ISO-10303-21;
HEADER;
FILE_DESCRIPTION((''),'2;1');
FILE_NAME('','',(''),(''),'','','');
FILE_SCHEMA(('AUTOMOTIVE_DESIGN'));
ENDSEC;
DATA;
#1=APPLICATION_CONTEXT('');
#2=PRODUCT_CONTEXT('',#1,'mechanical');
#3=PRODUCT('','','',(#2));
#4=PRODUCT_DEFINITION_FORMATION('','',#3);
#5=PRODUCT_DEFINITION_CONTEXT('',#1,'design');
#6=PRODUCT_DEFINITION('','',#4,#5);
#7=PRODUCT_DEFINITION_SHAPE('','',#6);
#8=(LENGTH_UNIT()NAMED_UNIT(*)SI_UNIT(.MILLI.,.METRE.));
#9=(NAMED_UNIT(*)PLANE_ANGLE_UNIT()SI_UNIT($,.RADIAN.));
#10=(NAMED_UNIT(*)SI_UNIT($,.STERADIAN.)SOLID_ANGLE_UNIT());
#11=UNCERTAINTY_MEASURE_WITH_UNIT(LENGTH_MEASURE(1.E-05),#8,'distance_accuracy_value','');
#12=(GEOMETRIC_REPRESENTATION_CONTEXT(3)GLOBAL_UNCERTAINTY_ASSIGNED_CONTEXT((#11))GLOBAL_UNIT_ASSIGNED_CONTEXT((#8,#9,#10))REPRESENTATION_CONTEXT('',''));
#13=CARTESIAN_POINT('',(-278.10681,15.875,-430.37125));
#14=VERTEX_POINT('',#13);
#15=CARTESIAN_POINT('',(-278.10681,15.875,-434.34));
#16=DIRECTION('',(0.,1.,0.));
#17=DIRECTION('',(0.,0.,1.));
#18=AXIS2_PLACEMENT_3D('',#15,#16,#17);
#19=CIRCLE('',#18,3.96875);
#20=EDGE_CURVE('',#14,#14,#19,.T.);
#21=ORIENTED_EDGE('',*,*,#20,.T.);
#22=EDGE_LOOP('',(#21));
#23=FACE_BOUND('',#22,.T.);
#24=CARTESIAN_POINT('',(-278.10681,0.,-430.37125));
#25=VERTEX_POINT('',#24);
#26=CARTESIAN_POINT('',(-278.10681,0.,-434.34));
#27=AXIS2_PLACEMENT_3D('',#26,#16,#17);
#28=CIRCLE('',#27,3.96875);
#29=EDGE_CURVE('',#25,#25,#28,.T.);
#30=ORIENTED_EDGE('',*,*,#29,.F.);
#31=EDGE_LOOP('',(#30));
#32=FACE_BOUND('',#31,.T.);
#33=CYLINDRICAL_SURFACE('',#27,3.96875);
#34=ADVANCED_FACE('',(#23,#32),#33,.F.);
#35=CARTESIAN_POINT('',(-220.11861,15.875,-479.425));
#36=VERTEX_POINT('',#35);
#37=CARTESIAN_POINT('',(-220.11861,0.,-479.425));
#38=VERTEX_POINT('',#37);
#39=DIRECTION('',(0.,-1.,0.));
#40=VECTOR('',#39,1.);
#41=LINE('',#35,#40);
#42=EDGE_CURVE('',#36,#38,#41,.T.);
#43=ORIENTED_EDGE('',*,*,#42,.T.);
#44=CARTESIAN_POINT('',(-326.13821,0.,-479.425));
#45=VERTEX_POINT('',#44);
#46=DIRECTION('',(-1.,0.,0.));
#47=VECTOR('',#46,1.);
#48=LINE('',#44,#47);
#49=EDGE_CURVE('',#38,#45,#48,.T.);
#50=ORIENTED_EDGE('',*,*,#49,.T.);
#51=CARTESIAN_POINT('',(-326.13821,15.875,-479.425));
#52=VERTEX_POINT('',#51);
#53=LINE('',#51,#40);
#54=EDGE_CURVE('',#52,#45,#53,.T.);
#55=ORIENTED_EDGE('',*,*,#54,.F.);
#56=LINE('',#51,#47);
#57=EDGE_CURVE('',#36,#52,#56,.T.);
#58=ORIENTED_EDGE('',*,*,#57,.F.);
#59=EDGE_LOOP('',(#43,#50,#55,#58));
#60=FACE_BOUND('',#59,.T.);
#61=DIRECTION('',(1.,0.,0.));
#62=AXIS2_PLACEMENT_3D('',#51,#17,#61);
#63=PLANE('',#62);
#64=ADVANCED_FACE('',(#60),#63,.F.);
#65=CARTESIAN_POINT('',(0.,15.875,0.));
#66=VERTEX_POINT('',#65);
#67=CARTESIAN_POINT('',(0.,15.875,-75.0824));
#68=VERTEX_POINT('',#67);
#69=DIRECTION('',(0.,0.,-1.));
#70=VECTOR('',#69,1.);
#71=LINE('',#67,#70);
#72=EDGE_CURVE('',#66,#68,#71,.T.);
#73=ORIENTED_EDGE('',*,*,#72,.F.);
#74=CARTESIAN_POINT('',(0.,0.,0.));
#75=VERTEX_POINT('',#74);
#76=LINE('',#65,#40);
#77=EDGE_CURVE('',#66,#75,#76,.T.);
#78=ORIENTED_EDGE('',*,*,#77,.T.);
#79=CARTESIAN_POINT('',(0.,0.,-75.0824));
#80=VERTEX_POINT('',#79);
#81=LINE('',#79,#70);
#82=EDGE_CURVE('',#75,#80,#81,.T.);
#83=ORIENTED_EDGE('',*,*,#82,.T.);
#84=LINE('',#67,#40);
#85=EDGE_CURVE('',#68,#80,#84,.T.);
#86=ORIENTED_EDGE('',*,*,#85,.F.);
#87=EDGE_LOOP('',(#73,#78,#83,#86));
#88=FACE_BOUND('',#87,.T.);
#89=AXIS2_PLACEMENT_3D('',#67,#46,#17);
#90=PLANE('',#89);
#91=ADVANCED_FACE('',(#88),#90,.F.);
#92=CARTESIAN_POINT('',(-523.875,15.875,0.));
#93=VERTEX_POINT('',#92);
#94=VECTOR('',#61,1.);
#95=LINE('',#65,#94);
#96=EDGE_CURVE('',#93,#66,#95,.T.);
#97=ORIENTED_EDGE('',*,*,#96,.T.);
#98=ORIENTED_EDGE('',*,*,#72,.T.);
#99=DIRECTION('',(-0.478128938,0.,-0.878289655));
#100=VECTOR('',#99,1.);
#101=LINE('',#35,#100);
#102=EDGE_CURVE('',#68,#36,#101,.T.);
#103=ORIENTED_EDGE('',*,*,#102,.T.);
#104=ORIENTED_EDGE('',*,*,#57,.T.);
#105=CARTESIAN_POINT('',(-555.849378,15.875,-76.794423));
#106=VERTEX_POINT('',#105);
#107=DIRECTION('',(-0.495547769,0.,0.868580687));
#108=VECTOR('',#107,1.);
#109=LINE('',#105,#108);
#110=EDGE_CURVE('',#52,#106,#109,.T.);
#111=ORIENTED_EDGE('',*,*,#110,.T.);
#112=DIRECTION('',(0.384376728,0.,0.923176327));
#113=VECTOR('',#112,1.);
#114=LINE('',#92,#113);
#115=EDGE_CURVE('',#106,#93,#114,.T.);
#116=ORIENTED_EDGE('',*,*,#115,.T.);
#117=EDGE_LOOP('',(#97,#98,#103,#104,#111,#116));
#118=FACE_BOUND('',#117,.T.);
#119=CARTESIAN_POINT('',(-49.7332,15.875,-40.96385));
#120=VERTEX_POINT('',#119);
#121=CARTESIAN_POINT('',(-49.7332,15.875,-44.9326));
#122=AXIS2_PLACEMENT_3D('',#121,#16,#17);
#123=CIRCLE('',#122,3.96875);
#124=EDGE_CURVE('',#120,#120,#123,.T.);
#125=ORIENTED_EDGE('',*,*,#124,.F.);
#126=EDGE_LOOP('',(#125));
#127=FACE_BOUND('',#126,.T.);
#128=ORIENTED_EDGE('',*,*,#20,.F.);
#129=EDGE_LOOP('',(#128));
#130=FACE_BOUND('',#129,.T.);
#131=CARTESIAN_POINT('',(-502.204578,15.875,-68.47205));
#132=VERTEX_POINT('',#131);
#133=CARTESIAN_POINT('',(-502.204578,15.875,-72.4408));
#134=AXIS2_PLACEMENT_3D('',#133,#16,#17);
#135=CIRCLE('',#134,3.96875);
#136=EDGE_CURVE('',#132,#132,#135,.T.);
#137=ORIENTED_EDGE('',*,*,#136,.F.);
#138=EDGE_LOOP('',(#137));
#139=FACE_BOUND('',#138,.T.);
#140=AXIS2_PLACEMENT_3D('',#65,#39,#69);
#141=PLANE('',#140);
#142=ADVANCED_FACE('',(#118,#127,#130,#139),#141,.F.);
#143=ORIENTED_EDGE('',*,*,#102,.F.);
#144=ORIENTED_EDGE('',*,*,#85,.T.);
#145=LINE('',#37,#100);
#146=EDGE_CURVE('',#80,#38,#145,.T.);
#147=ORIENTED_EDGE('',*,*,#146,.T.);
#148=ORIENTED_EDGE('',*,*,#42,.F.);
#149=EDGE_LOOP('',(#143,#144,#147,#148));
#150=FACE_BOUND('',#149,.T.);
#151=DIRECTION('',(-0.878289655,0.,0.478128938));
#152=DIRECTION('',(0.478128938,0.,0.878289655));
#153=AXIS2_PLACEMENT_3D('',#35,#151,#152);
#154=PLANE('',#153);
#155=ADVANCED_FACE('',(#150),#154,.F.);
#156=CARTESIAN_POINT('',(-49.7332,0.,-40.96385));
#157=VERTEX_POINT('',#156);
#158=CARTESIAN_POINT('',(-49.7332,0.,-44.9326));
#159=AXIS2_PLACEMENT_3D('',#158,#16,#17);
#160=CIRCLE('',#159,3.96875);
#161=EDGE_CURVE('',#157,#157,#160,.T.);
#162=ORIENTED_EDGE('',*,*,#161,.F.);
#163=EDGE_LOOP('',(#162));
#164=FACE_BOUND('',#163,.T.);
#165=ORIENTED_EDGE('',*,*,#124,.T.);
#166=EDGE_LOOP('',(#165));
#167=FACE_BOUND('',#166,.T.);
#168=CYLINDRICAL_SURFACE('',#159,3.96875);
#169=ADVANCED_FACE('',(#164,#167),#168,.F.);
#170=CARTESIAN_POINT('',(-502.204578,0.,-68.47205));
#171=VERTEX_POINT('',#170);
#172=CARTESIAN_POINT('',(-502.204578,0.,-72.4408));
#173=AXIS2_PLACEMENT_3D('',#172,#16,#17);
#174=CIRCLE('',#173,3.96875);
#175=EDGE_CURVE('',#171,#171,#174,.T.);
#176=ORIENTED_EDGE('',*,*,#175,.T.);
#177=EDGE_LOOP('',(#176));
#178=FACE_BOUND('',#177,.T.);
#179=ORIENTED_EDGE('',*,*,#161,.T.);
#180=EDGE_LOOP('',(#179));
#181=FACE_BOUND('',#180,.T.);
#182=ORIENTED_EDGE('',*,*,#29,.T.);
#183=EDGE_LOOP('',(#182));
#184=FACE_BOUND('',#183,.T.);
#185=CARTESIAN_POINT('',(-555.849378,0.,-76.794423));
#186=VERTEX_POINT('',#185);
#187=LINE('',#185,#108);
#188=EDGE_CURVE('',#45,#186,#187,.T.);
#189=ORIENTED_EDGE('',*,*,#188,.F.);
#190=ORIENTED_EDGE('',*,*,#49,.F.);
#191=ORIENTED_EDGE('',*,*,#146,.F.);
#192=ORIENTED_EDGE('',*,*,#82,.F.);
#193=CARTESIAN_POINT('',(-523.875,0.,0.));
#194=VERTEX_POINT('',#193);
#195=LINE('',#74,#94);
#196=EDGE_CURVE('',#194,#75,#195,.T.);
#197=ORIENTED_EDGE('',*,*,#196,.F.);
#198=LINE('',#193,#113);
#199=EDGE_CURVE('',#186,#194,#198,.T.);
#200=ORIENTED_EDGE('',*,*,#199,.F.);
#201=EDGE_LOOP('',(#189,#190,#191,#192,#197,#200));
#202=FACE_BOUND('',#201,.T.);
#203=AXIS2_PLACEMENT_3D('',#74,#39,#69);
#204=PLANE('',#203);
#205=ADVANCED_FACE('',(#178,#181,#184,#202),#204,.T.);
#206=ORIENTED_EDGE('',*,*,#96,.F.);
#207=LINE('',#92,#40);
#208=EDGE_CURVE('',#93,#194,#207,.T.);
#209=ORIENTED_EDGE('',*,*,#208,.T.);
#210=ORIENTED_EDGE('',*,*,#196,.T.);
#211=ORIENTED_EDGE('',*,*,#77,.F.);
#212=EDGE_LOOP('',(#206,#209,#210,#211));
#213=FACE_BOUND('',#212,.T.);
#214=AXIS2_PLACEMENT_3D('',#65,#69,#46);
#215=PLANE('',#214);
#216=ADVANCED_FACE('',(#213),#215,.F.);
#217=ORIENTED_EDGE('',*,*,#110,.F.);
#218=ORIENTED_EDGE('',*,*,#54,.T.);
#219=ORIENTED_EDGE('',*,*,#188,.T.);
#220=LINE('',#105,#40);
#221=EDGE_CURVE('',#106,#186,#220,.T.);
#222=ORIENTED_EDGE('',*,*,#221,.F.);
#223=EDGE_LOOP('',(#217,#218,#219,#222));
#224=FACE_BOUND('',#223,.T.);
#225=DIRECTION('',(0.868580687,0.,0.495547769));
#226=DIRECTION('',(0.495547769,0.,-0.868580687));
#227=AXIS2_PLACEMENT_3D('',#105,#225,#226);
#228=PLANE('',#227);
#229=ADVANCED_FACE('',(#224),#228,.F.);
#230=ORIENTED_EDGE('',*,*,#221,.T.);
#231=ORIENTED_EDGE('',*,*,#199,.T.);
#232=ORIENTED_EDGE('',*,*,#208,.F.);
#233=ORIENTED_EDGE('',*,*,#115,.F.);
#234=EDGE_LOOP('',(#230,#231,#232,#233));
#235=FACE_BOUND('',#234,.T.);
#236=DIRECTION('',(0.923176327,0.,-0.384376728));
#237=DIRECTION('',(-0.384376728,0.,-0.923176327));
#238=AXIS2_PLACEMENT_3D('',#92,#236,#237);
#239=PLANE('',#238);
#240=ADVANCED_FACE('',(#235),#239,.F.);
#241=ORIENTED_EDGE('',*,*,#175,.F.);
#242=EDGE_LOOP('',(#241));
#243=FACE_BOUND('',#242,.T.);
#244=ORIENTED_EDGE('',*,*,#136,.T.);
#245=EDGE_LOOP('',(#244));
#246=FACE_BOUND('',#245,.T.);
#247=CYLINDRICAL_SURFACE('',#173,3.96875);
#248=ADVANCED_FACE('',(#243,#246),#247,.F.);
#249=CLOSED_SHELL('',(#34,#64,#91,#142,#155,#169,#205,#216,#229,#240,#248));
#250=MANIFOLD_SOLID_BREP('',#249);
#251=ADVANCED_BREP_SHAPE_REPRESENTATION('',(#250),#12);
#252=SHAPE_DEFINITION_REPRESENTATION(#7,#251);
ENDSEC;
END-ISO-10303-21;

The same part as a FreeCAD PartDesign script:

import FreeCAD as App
import Part
import Sketcher

V = App.Vector
Q = App.Units.Quantity


def add_polygon(sketch, points):
    """Adds a closed chain of lines whose ends are joined by coincident constraints."""
    first, n = sketch.GeometryCount, len(points)
    for a, b in zip(points, points[1:] + points[:1]):
        sketch.addGeometry(Part.LineSegment(App.Vector(*a, 0), App.Vector(*b, 0)), False)
    for i in range(n):
        sketch.addConstraint(Sketcher.Constraint("Coincident", first + i, 2, first + (i + 1) % n, 1))

doc = App.newDocument("Part")
body = doc.addObject("PartDesign::Body", "Body")

# Sketch on XZ plane
sketch1 = body.newObject("Sketcher::SketchObject", "Sketch")
sketch1.AttachmentSupport = (doc.getObject("XZ_Plane"), [""])
sketch1.MapMode = "FlatFace"
add_polygon(sketch1, [(-524, 0), (0, 0), (0, -75), (-220, -479), (-326, -479), (-556, -77)])  # lines 0-5
sketch1.addConstraint([
    Sketcher.Constraint("Horizontal", 0),
    Sketcher.Constraint("Vertical", 1),
    Sketcher.Constraint("Horizontal", 3),
    Sketcher.Constraint("Coincident", 0, 2, -1, 1),
    Sketcher.Constraint("Distance", 4, Q("18.25 in")),
    Sketcher.Constraint("DistanceX", 0, 1, 0, 2, Q("20.625 in")),
    Sketcher.Constraint("DistanceX", 3, 2, 3, 1, Q("4.174 in")),
    Sketcher.Constraint("DistanceY", 1, 2, 1, 1, Q("2.956 in")),
    Sketcher.Constraint("Distance", 2, Q("18.125 in")),
    Sketcher.Constraint("Distance", 5, Q("3.275 in")),
    Sketcher.Constraint("DistanceY", 2, 2, -1, 1, Q("18.875 in")),
])
pad1 = body.newObject("PartDesign::Pad", "Pad")
pad1.Profile = sketch1
pad1.Length = Q("0.625 in")
pad1.Reversed = True

# Sketch on XZ plane
sketch2 = body.newObject("Sketcher::SketchObject", "Sketch001")
sketch2.AttachmentSupport = (doc.getObject("XZ_Plane"), [""])
sketch2.MapMode = "FlatFace"
sketch2.AttachmentOffset = App.Placement(V(0, 0, -0.625 * 25.4), App.Rotation())
sketch2.addGeometry([
    Part.Circle(V(-278.1, -434.3, 0), V(0, 0, 1), 4),
    Part.Circle(V(-502.2, -72.4, 0), V(0, 0, 1), 4),
    Part.Circle(V(-49.7, -44.9, 0), V(0, 0, 1), 4),
], False)
sketch2.addConstraint([
    Sketcher.Constraint("Equal", 0, 1),
    Sketcher.Constraint("Equal", 1, 2),
    Sketcher.Constraint("Diameter", 0, Q("0.3125 in")),
    Sketcher.Constraint("DistanceY", 0, 3, -1, 1, Q("17.1 in")),
    Sketcher.Constraint("DistanceY", 1, 3, -1, 1, Q("2.852 in")),
    Sketcher.Constraint("DistanceX", 2, 3, -1, 1, Q("1.958 in")),
    Sketcher.Constraint("DistanceY", 2, 3, -1, 1, Q("1.769 in")),
    Sketcher.Constraint("DistanceX", 0, 3, -1, 1, 278.10681),
    Sketcher.Constraint("DistanceX", 1, 3, -1, 1, 502.204578),
])
pocket1 = body.newObject("PartDesign::Pocket", "Pocket")
pocket1.Profile = sketch2
pocket1.Type = "ThroughAll"
pocket1.Reversed = True

doc.recompute()
